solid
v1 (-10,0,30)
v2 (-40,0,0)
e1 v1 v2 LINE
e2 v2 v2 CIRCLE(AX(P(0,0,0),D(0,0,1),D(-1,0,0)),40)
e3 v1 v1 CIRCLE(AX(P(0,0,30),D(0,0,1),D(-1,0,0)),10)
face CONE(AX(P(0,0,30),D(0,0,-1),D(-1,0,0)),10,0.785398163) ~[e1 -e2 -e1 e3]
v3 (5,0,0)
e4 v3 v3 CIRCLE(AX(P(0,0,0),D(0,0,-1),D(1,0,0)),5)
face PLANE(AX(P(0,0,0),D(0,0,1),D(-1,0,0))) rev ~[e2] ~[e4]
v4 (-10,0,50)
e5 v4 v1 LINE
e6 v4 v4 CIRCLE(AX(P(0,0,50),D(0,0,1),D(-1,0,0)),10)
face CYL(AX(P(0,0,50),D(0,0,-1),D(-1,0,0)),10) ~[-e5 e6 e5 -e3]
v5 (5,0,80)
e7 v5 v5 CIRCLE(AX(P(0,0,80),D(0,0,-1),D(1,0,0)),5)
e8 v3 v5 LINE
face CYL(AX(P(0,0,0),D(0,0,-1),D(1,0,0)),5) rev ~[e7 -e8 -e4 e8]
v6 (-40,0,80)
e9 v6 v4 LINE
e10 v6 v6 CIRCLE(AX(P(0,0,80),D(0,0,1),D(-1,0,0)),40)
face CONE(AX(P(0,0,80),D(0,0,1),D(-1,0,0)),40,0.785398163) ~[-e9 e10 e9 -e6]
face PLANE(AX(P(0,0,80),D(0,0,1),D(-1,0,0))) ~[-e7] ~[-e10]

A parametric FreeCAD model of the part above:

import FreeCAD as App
import Part
import Sketcher

V = App.Vector
Q = App.Units.Quantity


def add_polygon(sketch, points):
    """Adds a closed chain of lines whose ends are joined by coincident constraints."""
    first, n = sketch.GeometryCount, len(points)
    for a, b in zip(points, points[1:] + points[:1]):
        sketch.addGeometry(Part.LineSegment(App.Vector(*a, 0), App.Vector(*b, 0)), False)
    for i in range(n):
        sketch.addConstraint(Sketcher.Constraint("Coincident", first + i, 2, first + (i + 1) % n, 1))

doc = App.newDocument("Part")
body = doc.addObject("PartDesign::Body", "Body")

sketch1 = body.newObject("Sketcher::SketchObject", "Sketch")
sketch1.AttachmentSupport = (doc.getObject("XZ_Plane"), [""])
sketch1.MapMode = "FlatFace"
add_polygon(sketch1, [(-40, 0), (0, 0), (0, 80), (-40, 80), (-10, 50), (-10, 30)])
sketch1.addConstraint([
    Sketcher.Constraint("Horizontal", 0),
    Sketcher.Constraint("Vertical", 1),
    Sketcher.Constraint("Horizontal", 2),
    Sketcher.Constraint("Vertical", 4),
    Sketcher.Constraint("Coincident", 0, 2, -1, 1),
    Sketcher.Constraint("Perpendicular", 3, 5),
    Sketcher.Constraint("Vertical", 2, 2, 5, 2),
    Sketcher.Constraint("Equal", 3, 5),
    Sketcher.Constraint("DistanceX", 0, 1, 0, 2, Q("40 mm")),
    Sketcher.Constraint("DistanceY", 1, 1, 1, 2, Q("80 mm")),
    Sketcher.Constraint("DistanceY", 4, 2, 4, 1, Q("20 mm")),
])
revolution = body.newObject("PartDesign::Revolution", "Revolution")
revolution.Profile = sketch1
revolution.ReferenceAxis = (sketch1, ["V_Axis"])
revolution.Angle = 360

sketch2 = body.newObject("Sketcher::SketchObject", "Sketch001")
sketch2.AttachmentSupport = (doc.getObject("XY_Plane"), [""])
sketch2.MapMode = "FlatFace"
sketch2.addGeometry(Part.Circle(V(0, 0, 0), V(0, 0, 1), 5), False)
sketch2.addConstraint([
    Sketcher.Constraint("Coincident", 0, 3, -1, 1),
    Sketcher.Constraint("Diameter", 0, Q("10 mm")),
])
pocket1 = body.newObject("PartDesign::Pocket", "Pocket")
pocket1.Profile = sketch2
pocket1.Type = "ThroughAll"
pocket1.Reversed = True

doc.recompute()
